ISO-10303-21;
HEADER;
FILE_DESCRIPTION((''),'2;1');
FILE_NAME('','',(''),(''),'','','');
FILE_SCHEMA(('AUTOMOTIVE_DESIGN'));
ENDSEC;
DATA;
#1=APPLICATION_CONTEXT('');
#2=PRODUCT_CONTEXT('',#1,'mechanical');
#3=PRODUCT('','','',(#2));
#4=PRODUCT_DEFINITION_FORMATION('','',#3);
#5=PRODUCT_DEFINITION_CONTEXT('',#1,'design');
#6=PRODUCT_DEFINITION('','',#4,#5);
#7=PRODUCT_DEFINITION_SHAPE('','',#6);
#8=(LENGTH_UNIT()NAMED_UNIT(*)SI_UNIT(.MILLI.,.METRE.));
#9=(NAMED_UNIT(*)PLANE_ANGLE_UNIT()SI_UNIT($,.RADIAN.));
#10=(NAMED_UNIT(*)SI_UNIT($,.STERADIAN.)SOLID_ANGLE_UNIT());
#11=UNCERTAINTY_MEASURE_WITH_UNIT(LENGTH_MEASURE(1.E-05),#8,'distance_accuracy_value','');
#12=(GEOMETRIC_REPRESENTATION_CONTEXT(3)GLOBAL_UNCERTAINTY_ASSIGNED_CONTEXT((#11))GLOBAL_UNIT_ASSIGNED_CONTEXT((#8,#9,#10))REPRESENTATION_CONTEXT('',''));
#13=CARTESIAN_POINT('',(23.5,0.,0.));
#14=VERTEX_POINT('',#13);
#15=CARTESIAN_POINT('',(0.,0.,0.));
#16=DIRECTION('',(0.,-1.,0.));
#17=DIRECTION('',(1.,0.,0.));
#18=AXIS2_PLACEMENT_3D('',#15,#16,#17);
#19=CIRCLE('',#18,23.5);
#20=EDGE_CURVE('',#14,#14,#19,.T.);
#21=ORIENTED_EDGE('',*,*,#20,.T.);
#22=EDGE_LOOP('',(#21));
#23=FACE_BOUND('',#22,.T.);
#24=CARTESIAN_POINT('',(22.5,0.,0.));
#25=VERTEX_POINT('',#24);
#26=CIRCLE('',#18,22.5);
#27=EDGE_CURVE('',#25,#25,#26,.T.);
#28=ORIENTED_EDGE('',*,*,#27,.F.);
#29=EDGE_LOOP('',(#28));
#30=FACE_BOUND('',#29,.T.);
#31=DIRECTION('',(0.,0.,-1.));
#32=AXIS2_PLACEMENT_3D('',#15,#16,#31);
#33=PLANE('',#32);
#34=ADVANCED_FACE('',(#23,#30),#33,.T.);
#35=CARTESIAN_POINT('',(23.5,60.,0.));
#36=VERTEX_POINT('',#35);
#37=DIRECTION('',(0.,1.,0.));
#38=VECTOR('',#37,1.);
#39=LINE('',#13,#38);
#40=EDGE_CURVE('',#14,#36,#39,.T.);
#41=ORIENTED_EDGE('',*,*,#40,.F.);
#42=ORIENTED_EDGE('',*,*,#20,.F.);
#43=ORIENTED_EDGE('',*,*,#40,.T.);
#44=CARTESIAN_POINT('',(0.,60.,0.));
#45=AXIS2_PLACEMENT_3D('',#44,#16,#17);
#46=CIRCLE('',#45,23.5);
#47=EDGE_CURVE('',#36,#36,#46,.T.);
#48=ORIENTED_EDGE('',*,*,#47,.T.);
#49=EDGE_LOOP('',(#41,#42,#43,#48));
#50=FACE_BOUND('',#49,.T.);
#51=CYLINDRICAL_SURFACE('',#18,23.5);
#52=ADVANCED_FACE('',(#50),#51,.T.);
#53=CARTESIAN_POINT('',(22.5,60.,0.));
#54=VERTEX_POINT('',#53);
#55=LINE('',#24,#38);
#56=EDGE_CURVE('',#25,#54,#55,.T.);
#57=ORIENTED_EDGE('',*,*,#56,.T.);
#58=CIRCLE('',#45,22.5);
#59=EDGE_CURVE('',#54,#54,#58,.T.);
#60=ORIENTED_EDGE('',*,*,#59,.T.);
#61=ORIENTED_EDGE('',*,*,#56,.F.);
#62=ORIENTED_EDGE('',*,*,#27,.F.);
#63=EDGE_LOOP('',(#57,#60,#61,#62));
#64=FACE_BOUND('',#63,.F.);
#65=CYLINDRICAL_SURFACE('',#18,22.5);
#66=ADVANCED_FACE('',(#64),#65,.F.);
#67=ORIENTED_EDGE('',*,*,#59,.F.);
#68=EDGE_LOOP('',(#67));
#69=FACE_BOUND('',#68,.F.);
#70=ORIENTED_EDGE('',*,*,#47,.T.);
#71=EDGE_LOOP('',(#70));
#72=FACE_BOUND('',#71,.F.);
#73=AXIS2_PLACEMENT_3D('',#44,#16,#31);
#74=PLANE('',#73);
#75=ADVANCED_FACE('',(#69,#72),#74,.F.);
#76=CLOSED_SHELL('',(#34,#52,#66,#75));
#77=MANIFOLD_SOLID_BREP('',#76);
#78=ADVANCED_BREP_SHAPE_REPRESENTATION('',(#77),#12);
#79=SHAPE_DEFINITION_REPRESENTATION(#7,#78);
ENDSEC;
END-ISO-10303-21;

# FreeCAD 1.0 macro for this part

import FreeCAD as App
import Part
import Sketcher
from FreeCAD import Vector
Q = App.Units.Quantity

doc = App.newDocument("Part")
body = doc.addObject("PartDesign::Body", "Body")

# Sketch on XZ plane
sketch1 = doc.addObject("Sketcher::SketchObject", "Sketch")
body.addObject(sketch1)
sketch1.AttachmentSupport = (doc.XZ_Plane, [""])
sketch1.MapMode = "FlatFace"
sketch1.addGeometry(Part.Circle(Vector(0, 0, 0), Vector(0, 0, 1), 23.5), False)
sketch1.addGeometry(Part.Circle(Vector(0, 0, 0), Vector(0, 0, 1), 22.5), False)
sketch1.addConstraint(Sketcher.Constraint("Coincident", 0, 3, -1, 1))
sketch1.addConstraint(Sketcher.Constraint("Coincident", 1, 3, -1, 1))
sketch1.addConstraint(Sketcher.Constraint("Diameter", 0, Q("47 mm")))
sketch1.addConstraint(Sketcher.Constraint("Diameter", 1, Q("45 mm")))
pad1 = doc.addObject("PartDesign::Pad", "Pad")
body.addObject(pad1)
pad1.Profile = sketch1
pad1.Length = 60
pad1.Reversed = True

doc.recompute()
